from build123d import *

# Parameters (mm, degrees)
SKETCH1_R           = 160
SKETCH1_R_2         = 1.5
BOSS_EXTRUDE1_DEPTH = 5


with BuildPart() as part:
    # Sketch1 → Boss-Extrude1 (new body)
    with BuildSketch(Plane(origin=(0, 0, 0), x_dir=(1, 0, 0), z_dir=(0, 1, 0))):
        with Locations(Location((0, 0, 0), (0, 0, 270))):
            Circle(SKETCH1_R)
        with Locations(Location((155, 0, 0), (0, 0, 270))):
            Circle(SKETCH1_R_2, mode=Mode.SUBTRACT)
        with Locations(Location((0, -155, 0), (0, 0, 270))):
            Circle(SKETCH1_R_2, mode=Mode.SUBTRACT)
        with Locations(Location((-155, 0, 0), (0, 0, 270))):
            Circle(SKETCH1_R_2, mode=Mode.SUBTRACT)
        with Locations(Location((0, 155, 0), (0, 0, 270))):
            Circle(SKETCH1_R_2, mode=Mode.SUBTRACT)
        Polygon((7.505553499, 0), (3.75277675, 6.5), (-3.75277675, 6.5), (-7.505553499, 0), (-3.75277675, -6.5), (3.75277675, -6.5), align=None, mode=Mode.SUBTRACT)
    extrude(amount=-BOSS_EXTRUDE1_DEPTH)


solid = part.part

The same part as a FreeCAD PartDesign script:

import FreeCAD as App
import Part
import Sketcher
Q = App.Units.Quantity

doc = App.newDocument("Part")
body = doc.addObject("PartDesign::Body", "Body")

# Sketch on XZ plane
sketch1 = body.newObject("Sketcher::SketchObject", "Sketch")
sketch1.AttachmentSupport = (doc.getObject("XZ_Plane"), [""])
sketch1.MapMode = "FlatFace"
sketch1.addGeometry([
    Part.Circle(App.Vector(0, 0, 0), App.Vector(0, 0, 1), 160),  # 0
    Part.Circle(App.Vector(0, -155, 0), App.Vector(0, 0, 1), 1.5),  # 1
    Part.Circle(App.Vector(-155, 0, 0), App.Vector(0, 0, 1), 1.5),  # 2
    Part.Circle(App.Vector(155, 0, 0), App.Vector(0, 0, 1), 1.5),  # 3
    Part.LineSegment(App.Vector(3.8, -6.5, 0), App.Vector(7.5, 0, 0)),  # 4
    Part.LineSegment(App.Vector(7.5, 0, 0), App.Vector(3.8, 6.5, 0)),  # 5
    Part.LineSegment(App.Vector(3.8, 6.5, 0), App.Vector(-3.8, 6.5, 0)),  # 6
    Part.LineSegment(App.Vector(-3.8, 6.5, 0), App.Vector(-7.5, 0, 0)),  # 7
    Part.LineSegment(App.Vector(-7.5, 0, 0), App.Vector(-3.8, -6.5, 0)),  # 8
    Part.LineSegment(App.Vector(-3.8, -6.5, 0), App.Vector(3.8, -6.5, 0)),  # 9
    Part.Circle(App.Vector(0, 155, 0), App.Vector(0, 0, 1), 1.5),  # 10
], False)
sketch1.addConstraint([
    Sketcher.Constraint("Coincident", 4, 2, 5, 1),
    Sketcher.Constraint("Coincident", 5, 2, 6, 1),
    Sketcher.Constraint("Coincident", 6, 2, 7, 1),
    Sketcher.Constraint("Coincident", 7, 2, 8, 1),
    Sketcher.Constraint("Coincident", 8, 2, 9, 1),
    Sketcher.Constraint("Coincident", 9, 2, 4, 1),
    Sketcher.Constraint("Horizontal", 6),
    Sketcher.Constraint("Horizontal", 9),
    Sketcher.Constraint("Coincident", 0, 3, -1, 1),
    Sketcher.Constraint("Equal", 1, 2),
    Sketcher.Constraint("Equal", 2, 3),
    Sketcher.Constraint("Equal", 3, 10),
    Sketcher.Constraint("Symmetric", 2, 3, 3, 3, -1, 1),
    Sketcher.Constraint("Symmetric", 1, 3, 10, 3, -1, 1),
    Sketcher.Constraint("Symmetric", 4, 2, 7, 2, -1, 1),
    Sketcher.Constraint("Symmetric", 5, 2, 8, 2, -1, 1),
    Sketcher.Constraint("PointOnObject", 1, 3, -2),
    Sketcher.Constraint("PointOnObject", 2, 3, -1),
    Sketcher.Constraint("PointOnObject", 4, 2, -1),
    Sketcher.Constraint("Parallel", 4, 7),
    Sketcher.Constraint("Vertical", 6, 2, 8, 2),
    Sketcher.Constraint("Diameter", 0, Q("320 mm")),
    Sketcher.Constraint("Diameter", 1, Q("3 mm")),
    Sketcher.Constraint("Angle", 4, Q("60 deg")),
    Sketcher.Constraint("DistanceY", 1, 3, -1, 1, Q("155 mm")),
    Sketcher.Constraint("DistanceX", 2, 3, -1, 1, Q("155 mm")),
    Sketcher.Constraint("DistanceY", 8, 2, 6, 2, Q("13 mm")),
    Sketcher.Constraint("DistanceX", 6, 2, 6, 1, Q("7.505554 mm")),
])
pad1 = body.newObject("PartDesign::Pad", "Pad")
pad1.Profile = sketch1
pad1.Length = 5

doc.recompute()
